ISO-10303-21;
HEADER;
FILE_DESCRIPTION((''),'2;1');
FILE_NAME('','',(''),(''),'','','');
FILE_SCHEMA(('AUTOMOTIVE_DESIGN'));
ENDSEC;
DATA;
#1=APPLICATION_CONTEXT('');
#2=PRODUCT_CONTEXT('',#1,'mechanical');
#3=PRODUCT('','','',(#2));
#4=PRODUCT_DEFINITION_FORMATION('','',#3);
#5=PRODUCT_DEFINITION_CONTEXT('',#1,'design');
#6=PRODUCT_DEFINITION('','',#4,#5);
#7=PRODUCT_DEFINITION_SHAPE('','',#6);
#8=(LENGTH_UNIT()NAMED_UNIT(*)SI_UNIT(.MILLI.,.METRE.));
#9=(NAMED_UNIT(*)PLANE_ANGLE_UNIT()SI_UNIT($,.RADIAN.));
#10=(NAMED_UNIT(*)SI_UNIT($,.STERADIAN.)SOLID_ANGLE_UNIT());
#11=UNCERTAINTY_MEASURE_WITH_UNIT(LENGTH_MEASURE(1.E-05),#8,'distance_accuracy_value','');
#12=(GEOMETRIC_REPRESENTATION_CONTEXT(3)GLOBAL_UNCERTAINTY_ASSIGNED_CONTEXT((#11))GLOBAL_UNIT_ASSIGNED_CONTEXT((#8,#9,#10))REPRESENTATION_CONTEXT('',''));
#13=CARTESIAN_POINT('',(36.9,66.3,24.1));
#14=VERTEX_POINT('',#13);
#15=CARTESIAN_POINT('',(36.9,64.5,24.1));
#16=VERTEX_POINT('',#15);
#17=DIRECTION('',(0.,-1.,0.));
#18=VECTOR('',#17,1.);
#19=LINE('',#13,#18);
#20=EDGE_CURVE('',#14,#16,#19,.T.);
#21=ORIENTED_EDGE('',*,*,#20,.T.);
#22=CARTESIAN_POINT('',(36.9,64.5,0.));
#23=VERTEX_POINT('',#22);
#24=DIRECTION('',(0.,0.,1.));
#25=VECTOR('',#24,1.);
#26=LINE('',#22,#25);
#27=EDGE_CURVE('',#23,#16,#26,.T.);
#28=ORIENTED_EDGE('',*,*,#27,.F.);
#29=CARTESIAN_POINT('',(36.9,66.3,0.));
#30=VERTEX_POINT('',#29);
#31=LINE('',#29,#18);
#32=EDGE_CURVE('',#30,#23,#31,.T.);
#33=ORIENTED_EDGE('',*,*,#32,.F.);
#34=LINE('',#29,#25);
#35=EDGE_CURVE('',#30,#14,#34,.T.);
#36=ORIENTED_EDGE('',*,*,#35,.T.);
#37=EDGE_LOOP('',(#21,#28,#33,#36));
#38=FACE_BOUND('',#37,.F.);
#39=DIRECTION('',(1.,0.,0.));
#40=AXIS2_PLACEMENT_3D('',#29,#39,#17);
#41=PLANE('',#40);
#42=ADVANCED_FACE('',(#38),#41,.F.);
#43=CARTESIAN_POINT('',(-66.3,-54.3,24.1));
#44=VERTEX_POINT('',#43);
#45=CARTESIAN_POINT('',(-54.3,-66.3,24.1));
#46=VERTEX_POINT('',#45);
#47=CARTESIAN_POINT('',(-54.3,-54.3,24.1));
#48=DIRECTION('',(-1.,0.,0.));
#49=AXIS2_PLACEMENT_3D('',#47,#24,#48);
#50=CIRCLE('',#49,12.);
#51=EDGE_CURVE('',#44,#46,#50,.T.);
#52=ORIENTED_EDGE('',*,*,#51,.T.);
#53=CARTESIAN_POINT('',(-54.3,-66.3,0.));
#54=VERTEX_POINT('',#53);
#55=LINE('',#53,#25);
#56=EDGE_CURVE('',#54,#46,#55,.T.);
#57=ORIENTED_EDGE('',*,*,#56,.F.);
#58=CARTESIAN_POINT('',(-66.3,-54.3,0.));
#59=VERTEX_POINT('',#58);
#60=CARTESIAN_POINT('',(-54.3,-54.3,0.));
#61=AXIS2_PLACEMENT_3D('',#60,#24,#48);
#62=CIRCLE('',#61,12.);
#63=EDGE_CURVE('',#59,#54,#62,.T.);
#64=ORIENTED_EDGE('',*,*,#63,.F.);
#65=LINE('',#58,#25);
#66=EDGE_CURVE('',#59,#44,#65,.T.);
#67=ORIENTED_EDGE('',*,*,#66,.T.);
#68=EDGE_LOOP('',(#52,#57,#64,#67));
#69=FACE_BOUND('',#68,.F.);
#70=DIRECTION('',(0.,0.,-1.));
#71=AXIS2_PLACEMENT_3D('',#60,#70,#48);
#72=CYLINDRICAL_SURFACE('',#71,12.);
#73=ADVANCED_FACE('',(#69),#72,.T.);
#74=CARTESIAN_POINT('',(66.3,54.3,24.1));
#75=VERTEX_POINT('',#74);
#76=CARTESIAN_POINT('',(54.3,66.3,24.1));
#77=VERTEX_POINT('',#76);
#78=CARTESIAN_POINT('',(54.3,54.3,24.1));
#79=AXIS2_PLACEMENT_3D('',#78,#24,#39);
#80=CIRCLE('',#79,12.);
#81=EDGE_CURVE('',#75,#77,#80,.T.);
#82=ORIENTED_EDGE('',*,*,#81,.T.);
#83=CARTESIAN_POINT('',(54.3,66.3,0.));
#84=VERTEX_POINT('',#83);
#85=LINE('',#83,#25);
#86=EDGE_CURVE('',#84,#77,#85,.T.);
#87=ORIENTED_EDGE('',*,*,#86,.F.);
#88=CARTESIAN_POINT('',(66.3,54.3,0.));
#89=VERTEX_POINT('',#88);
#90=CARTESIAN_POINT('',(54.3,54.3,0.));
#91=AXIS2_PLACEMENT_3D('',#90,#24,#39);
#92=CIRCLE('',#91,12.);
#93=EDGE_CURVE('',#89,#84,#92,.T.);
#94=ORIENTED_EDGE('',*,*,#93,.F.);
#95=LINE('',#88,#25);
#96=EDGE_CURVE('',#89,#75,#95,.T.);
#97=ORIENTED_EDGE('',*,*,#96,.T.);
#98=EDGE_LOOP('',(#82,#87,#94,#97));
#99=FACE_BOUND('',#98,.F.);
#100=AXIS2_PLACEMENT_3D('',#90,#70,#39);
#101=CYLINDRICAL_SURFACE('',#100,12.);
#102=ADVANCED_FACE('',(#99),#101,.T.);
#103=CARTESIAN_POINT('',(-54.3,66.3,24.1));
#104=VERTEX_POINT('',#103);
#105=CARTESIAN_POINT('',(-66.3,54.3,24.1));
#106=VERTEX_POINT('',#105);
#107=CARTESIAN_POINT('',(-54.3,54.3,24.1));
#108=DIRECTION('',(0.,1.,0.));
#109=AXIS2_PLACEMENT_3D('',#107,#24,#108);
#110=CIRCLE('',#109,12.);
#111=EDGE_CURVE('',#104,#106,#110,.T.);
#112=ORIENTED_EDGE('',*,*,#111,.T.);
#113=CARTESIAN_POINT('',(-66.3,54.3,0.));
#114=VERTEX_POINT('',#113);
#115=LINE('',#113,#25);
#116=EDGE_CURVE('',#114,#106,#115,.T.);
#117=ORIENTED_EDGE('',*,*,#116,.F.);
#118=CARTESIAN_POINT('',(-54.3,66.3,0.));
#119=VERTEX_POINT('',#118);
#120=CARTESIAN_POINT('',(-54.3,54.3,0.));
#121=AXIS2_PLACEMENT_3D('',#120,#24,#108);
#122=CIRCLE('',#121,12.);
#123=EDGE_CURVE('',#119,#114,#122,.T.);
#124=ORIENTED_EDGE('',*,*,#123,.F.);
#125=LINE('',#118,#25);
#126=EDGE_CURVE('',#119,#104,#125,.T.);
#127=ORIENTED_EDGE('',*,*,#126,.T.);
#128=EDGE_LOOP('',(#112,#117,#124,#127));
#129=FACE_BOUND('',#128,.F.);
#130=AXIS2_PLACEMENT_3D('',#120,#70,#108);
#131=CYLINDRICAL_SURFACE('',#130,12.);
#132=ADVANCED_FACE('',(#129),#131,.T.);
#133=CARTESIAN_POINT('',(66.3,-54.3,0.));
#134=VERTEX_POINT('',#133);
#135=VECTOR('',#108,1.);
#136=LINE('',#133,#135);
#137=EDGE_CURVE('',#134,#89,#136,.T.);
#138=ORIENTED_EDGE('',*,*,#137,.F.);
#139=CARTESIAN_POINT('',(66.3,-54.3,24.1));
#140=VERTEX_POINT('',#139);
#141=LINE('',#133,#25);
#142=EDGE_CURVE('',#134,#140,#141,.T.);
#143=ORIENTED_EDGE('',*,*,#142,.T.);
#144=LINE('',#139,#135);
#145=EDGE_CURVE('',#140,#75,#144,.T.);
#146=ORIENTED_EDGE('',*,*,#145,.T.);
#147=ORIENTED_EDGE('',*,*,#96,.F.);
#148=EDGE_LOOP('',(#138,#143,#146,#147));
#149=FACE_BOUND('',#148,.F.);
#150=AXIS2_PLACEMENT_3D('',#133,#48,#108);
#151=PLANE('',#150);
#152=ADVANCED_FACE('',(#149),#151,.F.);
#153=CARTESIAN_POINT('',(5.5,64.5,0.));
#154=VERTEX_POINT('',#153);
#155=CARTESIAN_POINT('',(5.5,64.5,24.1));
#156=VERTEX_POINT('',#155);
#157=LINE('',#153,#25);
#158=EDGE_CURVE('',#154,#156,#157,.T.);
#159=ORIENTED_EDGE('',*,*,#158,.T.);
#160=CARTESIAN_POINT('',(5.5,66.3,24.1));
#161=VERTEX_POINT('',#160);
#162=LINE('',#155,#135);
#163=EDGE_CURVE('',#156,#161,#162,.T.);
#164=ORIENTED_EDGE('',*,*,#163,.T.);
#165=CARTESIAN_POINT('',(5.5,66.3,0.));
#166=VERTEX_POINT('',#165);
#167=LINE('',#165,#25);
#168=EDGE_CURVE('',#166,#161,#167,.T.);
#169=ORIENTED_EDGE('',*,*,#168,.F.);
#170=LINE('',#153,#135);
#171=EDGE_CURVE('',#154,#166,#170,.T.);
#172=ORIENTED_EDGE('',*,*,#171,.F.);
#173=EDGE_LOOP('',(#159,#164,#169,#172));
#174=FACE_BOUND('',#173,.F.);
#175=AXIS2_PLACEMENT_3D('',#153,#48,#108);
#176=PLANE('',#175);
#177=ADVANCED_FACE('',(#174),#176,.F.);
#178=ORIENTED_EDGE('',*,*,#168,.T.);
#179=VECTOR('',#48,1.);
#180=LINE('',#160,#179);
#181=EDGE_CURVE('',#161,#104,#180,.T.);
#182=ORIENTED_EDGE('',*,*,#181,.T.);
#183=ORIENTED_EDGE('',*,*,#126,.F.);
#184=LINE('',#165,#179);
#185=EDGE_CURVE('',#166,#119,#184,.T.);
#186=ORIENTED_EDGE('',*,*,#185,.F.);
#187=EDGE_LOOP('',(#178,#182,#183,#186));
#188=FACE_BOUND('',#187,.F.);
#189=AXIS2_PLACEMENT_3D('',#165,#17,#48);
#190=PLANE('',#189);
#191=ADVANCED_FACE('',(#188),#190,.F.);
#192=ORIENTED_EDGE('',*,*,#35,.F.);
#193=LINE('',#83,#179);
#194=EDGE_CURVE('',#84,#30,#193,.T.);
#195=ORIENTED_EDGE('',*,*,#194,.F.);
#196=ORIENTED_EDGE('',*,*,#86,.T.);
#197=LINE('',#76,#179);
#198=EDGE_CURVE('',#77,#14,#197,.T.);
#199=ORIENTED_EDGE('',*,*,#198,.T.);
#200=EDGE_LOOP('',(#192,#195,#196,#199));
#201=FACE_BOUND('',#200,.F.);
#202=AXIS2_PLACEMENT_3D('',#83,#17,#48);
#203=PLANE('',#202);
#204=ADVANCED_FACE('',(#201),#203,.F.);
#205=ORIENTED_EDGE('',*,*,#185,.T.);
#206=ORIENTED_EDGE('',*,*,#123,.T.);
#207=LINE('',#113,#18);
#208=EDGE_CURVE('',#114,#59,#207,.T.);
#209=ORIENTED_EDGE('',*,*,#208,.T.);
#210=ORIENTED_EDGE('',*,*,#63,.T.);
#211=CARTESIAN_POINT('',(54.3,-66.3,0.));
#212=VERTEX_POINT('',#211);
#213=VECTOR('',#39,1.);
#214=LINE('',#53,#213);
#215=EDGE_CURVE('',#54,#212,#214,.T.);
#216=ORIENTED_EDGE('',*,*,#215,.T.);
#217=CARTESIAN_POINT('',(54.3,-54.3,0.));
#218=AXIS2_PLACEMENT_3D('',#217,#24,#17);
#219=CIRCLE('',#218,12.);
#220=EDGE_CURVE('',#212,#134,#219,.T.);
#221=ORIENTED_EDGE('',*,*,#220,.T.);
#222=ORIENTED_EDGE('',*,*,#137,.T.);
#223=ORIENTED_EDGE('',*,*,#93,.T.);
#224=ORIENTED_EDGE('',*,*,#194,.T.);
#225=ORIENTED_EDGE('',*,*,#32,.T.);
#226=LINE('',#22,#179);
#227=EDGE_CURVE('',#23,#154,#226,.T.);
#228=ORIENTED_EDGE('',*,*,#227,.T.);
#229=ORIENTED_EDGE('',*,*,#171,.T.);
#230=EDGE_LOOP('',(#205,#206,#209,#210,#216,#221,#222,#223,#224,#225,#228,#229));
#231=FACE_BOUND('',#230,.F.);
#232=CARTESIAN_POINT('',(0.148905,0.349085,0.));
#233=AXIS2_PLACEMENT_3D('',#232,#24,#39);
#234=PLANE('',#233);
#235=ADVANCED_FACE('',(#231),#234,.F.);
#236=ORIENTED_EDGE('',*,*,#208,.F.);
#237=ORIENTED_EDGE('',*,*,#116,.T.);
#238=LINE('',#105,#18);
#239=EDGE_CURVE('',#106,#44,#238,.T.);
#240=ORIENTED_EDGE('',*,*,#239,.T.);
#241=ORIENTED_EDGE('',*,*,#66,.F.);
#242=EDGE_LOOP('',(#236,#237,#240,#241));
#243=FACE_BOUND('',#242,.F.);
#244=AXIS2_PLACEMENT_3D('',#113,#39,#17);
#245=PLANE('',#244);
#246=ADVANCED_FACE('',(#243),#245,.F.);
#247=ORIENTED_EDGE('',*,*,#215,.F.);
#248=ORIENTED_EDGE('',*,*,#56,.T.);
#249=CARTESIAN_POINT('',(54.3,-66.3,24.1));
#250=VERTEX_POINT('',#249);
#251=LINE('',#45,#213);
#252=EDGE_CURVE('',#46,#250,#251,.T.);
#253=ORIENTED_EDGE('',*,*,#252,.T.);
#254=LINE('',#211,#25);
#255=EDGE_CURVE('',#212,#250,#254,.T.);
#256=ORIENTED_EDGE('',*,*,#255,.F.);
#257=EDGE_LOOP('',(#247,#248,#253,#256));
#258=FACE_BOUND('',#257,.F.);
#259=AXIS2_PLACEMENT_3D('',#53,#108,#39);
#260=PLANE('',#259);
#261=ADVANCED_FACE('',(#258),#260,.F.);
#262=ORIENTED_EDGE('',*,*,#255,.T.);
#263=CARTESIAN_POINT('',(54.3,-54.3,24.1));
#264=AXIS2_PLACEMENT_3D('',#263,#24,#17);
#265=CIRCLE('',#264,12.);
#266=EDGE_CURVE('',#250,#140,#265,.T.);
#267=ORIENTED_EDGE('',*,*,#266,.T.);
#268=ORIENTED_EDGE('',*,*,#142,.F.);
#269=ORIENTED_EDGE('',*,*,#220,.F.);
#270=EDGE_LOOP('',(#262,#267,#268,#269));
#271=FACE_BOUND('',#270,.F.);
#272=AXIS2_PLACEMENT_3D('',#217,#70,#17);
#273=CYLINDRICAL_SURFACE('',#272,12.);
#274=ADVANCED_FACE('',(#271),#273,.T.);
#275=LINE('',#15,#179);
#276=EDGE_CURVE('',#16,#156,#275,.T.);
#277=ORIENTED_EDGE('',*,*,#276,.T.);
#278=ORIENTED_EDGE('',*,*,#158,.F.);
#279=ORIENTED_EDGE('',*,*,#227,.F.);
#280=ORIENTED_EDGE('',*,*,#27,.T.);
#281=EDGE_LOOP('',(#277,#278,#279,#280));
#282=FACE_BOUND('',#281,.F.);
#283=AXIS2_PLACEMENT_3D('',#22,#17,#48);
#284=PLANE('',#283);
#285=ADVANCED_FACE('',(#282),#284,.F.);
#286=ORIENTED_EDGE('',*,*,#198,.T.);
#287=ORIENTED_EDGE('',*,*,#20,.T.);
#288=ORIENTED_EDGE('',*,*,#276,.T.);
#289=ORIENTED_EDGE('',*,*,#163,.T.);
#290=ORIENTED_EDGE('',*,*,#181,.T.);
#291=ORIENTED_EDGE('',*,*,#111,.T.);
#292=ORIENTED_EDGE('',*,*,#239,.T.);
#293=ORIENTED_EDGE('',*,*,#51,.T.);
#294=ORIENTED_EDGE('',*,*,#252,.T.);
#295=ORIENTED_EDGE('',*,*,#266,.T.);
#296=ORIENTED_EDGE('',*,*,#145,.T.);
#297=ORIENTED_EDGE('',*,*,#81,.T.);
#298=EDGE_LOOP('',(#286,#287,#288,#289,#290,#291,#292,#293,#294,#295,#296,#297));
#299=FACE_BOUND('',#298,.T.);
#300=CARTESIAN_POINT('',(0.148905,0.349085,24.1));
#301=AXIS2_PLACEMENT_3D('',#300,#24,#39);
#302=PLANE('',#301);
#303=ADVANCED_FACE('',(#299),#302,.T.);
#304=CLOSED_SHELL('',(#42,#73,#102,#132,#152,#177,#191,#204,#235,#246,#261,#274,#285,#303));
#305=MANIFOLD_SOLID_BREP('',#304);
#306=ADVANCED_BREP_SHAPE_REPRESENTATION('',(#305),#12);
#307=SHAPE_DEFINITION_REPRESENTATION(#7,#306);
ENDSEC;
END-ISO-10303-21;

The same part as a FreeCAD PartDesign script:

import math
import FreeCAD as App
import Part
import Sketcher

doc = App.newDocument("Part")
body = doc.addObject("PartDesign::Body", "Body")

# Sketch on XY plane
sketch1 = body.newObject("Sketcher::SketchObject", "Sketch")
sketch1.AttachmentSupport = (doc.getObject("XY_Plane"), [""])
sketch1.MapMode = "FlatFace"
sketch1.addGeometry(Part.LineSegment(App.Vector(5.5, 66.3, 0), App.Vector(-54.3, 66.3, 0)), False)
sketch1.addGeometry(Part.ArcOfCircle(Part.Circle(App.Vector(-54.3, 54.3, 0), App.Vector(0, 0, 1), 12), math.radians(90), math.radians(180)), False)
sketch1.addGeometry(Part.LineSegment(App.Vector(-66.3, 54.3, 0), App.Vector(-66.3, -54.3, 0)), False)
sketch1.addGeometry(Part.ArcOfCircle(Part.Circle(App.Vector(-54.3, -54.3, 0), App.Vector(0, 0, 1), 12), math.radians(180), math.radians(270)), False)
sketch1.addGeometry(Part.LineSegment(App.Vector(-54.3, -66.3, 0), App.Vector(54.3, -66.3, 0)), False)
sketch1.addGeometry(Part.ArcOfCircle(Part.Circle(App.Vector(54.3, -54.3, 0), App.Vector(0, 0, 1), 12), math.radians(-90), math.radians(0)), False)
sketch1.addGeometry(Part.LineSegment(App.Vector(66.3, -54.3, 0), App.Vector(66.3, 54.3, 0)), False)
sketch1.addGeometry(Part.ArcOfCircle(Part.Circle(App.Vector(54.3, 54.3, 0), App.Vector(0, 0, 1), 12), math.radians(0), math.radians(90)), False)
sketch1.addGeometry(Part.LineSegment(App.Vector(54.3, 66.3, 0), App.Vector(36.9, 66.3, 0)), False)
sketch1.addGeometry(Part.LineSegment(App.Vector(36.9, 66.3, 0), App.Vector(36.9, 64.5, 0)), False)
sketch1.addGeometry(Part.LineSegment(App.Vector(36.9, 64.5, 0), App.Vector(5.5, 64.5, 0)), False)
sketch1.addGeometry(Part.LineSegment(App.Vector(5.5, 64.5, 0), App.Vector(5.5, 66.3, 0)), False)
sketch1.addConstraint(Sketcher.Constraint("Tangent", 0, 2, 1, 1))
sketch1.addConstraint(Sketcher.Constraint("Tangent", 1, 2, 2, 1))
sketch1.addConstraint(Sketcher.Constraint("Tangent", 2, 2, 3, 1))
sketch1.addConstraint(Sketcher.Constraint("Tangent", 3, 2, 4, 1))
sketch1.addConstraint(Sketcher.Constraint("Tangent", 4, 2, 5, 1))
sketch1.addConstraint(Sketcher.Constraint("Tangent", 5, 2, 6, 1))
sketch1.addConstraint(Sketcher.Constraint("Tangent", 6, 2, 7, 1))
sketch1.addConstraint(Sketcher.Constraint("Tangent", 7, 2, 8, 1))
sketch1.addConstraint(Sketcher.Constraint("Coincident", 8, 2, 9, 1))
sketch1.addConstraint(Sketcher.Constraint("Coincident", 9, 2, 10, 1))
sketch1.addConstraint(Sketcher.Constraint("Coincident", 10, 2, 11, 1))
sketch1.addConstraint(Sketcher.Constraint("Coincident", 11, 2, 0, 1))
sketch1.addConstraint(Sketcher.Constraint("Horizontal", 0))
sketch1.addConstraint(Sketcher.Constraint("Vertical", 2))
sketch1.addConstraint(Sketcher.Constraint("Horizontal", 4))
sketch1.addConstraint(Sketcher.Constraint("Vertical", 6))
sketch1.addConstraint(Sketcher.Constraint("Horizontal", 8))
sketch1.addConstraint(Sketcher.Constraint("Vertical", 9))
sketch1.addConstraint(Sketcher.Constraint("Horizontal", 10))
sketch1.addConstraint(Sketcher.Constraint("Vertical", 11))
sketch1.addConstraint(Sketcher.Constraint("Equal", 1, 3))
sketch1.addConstraint(Sketcher.Constraint("Equal", 3, 5))
sketch1.addConstraint(Sketcher.Constraint("Equal", 5, 7))
sketch1.addConstraint(Sketcher.Constraint("Symmetric", 1, 3, 5, 3, -1, 1))
sketch1.addConstraint(Sketcher.Constraint("Horizontal", 1, 3, 7, 3))
sketch1.addConstraint(Sketcher.Constraint("Equal", 4, 2))
sketch1.addConstraint(Sketcher.Constraint("Radius", 1, 12.0))
sketch1.addConstraint(Sketcher.Constraint("DistanceX", 0, 2, 0, 1, 59.8))
sketch1.addConstraint(Sketcher.Constraint("DistanceX", 4, 1, 4, 2, 108.6))
sketch1.addConstraint(Sketcher.Constraint("DistanceX", 8, 2, 8, 1, 17.4))
sketch1.addConstraint(Sketcher.Constraint("DistanceY", 9, 2, 9, 1, 1.8))
pad1 = body.newObject("PartDesign::Pad", "Pad")
pad1.Profile = sketch1
pad1.Length = 24.1

doc.recompute()
